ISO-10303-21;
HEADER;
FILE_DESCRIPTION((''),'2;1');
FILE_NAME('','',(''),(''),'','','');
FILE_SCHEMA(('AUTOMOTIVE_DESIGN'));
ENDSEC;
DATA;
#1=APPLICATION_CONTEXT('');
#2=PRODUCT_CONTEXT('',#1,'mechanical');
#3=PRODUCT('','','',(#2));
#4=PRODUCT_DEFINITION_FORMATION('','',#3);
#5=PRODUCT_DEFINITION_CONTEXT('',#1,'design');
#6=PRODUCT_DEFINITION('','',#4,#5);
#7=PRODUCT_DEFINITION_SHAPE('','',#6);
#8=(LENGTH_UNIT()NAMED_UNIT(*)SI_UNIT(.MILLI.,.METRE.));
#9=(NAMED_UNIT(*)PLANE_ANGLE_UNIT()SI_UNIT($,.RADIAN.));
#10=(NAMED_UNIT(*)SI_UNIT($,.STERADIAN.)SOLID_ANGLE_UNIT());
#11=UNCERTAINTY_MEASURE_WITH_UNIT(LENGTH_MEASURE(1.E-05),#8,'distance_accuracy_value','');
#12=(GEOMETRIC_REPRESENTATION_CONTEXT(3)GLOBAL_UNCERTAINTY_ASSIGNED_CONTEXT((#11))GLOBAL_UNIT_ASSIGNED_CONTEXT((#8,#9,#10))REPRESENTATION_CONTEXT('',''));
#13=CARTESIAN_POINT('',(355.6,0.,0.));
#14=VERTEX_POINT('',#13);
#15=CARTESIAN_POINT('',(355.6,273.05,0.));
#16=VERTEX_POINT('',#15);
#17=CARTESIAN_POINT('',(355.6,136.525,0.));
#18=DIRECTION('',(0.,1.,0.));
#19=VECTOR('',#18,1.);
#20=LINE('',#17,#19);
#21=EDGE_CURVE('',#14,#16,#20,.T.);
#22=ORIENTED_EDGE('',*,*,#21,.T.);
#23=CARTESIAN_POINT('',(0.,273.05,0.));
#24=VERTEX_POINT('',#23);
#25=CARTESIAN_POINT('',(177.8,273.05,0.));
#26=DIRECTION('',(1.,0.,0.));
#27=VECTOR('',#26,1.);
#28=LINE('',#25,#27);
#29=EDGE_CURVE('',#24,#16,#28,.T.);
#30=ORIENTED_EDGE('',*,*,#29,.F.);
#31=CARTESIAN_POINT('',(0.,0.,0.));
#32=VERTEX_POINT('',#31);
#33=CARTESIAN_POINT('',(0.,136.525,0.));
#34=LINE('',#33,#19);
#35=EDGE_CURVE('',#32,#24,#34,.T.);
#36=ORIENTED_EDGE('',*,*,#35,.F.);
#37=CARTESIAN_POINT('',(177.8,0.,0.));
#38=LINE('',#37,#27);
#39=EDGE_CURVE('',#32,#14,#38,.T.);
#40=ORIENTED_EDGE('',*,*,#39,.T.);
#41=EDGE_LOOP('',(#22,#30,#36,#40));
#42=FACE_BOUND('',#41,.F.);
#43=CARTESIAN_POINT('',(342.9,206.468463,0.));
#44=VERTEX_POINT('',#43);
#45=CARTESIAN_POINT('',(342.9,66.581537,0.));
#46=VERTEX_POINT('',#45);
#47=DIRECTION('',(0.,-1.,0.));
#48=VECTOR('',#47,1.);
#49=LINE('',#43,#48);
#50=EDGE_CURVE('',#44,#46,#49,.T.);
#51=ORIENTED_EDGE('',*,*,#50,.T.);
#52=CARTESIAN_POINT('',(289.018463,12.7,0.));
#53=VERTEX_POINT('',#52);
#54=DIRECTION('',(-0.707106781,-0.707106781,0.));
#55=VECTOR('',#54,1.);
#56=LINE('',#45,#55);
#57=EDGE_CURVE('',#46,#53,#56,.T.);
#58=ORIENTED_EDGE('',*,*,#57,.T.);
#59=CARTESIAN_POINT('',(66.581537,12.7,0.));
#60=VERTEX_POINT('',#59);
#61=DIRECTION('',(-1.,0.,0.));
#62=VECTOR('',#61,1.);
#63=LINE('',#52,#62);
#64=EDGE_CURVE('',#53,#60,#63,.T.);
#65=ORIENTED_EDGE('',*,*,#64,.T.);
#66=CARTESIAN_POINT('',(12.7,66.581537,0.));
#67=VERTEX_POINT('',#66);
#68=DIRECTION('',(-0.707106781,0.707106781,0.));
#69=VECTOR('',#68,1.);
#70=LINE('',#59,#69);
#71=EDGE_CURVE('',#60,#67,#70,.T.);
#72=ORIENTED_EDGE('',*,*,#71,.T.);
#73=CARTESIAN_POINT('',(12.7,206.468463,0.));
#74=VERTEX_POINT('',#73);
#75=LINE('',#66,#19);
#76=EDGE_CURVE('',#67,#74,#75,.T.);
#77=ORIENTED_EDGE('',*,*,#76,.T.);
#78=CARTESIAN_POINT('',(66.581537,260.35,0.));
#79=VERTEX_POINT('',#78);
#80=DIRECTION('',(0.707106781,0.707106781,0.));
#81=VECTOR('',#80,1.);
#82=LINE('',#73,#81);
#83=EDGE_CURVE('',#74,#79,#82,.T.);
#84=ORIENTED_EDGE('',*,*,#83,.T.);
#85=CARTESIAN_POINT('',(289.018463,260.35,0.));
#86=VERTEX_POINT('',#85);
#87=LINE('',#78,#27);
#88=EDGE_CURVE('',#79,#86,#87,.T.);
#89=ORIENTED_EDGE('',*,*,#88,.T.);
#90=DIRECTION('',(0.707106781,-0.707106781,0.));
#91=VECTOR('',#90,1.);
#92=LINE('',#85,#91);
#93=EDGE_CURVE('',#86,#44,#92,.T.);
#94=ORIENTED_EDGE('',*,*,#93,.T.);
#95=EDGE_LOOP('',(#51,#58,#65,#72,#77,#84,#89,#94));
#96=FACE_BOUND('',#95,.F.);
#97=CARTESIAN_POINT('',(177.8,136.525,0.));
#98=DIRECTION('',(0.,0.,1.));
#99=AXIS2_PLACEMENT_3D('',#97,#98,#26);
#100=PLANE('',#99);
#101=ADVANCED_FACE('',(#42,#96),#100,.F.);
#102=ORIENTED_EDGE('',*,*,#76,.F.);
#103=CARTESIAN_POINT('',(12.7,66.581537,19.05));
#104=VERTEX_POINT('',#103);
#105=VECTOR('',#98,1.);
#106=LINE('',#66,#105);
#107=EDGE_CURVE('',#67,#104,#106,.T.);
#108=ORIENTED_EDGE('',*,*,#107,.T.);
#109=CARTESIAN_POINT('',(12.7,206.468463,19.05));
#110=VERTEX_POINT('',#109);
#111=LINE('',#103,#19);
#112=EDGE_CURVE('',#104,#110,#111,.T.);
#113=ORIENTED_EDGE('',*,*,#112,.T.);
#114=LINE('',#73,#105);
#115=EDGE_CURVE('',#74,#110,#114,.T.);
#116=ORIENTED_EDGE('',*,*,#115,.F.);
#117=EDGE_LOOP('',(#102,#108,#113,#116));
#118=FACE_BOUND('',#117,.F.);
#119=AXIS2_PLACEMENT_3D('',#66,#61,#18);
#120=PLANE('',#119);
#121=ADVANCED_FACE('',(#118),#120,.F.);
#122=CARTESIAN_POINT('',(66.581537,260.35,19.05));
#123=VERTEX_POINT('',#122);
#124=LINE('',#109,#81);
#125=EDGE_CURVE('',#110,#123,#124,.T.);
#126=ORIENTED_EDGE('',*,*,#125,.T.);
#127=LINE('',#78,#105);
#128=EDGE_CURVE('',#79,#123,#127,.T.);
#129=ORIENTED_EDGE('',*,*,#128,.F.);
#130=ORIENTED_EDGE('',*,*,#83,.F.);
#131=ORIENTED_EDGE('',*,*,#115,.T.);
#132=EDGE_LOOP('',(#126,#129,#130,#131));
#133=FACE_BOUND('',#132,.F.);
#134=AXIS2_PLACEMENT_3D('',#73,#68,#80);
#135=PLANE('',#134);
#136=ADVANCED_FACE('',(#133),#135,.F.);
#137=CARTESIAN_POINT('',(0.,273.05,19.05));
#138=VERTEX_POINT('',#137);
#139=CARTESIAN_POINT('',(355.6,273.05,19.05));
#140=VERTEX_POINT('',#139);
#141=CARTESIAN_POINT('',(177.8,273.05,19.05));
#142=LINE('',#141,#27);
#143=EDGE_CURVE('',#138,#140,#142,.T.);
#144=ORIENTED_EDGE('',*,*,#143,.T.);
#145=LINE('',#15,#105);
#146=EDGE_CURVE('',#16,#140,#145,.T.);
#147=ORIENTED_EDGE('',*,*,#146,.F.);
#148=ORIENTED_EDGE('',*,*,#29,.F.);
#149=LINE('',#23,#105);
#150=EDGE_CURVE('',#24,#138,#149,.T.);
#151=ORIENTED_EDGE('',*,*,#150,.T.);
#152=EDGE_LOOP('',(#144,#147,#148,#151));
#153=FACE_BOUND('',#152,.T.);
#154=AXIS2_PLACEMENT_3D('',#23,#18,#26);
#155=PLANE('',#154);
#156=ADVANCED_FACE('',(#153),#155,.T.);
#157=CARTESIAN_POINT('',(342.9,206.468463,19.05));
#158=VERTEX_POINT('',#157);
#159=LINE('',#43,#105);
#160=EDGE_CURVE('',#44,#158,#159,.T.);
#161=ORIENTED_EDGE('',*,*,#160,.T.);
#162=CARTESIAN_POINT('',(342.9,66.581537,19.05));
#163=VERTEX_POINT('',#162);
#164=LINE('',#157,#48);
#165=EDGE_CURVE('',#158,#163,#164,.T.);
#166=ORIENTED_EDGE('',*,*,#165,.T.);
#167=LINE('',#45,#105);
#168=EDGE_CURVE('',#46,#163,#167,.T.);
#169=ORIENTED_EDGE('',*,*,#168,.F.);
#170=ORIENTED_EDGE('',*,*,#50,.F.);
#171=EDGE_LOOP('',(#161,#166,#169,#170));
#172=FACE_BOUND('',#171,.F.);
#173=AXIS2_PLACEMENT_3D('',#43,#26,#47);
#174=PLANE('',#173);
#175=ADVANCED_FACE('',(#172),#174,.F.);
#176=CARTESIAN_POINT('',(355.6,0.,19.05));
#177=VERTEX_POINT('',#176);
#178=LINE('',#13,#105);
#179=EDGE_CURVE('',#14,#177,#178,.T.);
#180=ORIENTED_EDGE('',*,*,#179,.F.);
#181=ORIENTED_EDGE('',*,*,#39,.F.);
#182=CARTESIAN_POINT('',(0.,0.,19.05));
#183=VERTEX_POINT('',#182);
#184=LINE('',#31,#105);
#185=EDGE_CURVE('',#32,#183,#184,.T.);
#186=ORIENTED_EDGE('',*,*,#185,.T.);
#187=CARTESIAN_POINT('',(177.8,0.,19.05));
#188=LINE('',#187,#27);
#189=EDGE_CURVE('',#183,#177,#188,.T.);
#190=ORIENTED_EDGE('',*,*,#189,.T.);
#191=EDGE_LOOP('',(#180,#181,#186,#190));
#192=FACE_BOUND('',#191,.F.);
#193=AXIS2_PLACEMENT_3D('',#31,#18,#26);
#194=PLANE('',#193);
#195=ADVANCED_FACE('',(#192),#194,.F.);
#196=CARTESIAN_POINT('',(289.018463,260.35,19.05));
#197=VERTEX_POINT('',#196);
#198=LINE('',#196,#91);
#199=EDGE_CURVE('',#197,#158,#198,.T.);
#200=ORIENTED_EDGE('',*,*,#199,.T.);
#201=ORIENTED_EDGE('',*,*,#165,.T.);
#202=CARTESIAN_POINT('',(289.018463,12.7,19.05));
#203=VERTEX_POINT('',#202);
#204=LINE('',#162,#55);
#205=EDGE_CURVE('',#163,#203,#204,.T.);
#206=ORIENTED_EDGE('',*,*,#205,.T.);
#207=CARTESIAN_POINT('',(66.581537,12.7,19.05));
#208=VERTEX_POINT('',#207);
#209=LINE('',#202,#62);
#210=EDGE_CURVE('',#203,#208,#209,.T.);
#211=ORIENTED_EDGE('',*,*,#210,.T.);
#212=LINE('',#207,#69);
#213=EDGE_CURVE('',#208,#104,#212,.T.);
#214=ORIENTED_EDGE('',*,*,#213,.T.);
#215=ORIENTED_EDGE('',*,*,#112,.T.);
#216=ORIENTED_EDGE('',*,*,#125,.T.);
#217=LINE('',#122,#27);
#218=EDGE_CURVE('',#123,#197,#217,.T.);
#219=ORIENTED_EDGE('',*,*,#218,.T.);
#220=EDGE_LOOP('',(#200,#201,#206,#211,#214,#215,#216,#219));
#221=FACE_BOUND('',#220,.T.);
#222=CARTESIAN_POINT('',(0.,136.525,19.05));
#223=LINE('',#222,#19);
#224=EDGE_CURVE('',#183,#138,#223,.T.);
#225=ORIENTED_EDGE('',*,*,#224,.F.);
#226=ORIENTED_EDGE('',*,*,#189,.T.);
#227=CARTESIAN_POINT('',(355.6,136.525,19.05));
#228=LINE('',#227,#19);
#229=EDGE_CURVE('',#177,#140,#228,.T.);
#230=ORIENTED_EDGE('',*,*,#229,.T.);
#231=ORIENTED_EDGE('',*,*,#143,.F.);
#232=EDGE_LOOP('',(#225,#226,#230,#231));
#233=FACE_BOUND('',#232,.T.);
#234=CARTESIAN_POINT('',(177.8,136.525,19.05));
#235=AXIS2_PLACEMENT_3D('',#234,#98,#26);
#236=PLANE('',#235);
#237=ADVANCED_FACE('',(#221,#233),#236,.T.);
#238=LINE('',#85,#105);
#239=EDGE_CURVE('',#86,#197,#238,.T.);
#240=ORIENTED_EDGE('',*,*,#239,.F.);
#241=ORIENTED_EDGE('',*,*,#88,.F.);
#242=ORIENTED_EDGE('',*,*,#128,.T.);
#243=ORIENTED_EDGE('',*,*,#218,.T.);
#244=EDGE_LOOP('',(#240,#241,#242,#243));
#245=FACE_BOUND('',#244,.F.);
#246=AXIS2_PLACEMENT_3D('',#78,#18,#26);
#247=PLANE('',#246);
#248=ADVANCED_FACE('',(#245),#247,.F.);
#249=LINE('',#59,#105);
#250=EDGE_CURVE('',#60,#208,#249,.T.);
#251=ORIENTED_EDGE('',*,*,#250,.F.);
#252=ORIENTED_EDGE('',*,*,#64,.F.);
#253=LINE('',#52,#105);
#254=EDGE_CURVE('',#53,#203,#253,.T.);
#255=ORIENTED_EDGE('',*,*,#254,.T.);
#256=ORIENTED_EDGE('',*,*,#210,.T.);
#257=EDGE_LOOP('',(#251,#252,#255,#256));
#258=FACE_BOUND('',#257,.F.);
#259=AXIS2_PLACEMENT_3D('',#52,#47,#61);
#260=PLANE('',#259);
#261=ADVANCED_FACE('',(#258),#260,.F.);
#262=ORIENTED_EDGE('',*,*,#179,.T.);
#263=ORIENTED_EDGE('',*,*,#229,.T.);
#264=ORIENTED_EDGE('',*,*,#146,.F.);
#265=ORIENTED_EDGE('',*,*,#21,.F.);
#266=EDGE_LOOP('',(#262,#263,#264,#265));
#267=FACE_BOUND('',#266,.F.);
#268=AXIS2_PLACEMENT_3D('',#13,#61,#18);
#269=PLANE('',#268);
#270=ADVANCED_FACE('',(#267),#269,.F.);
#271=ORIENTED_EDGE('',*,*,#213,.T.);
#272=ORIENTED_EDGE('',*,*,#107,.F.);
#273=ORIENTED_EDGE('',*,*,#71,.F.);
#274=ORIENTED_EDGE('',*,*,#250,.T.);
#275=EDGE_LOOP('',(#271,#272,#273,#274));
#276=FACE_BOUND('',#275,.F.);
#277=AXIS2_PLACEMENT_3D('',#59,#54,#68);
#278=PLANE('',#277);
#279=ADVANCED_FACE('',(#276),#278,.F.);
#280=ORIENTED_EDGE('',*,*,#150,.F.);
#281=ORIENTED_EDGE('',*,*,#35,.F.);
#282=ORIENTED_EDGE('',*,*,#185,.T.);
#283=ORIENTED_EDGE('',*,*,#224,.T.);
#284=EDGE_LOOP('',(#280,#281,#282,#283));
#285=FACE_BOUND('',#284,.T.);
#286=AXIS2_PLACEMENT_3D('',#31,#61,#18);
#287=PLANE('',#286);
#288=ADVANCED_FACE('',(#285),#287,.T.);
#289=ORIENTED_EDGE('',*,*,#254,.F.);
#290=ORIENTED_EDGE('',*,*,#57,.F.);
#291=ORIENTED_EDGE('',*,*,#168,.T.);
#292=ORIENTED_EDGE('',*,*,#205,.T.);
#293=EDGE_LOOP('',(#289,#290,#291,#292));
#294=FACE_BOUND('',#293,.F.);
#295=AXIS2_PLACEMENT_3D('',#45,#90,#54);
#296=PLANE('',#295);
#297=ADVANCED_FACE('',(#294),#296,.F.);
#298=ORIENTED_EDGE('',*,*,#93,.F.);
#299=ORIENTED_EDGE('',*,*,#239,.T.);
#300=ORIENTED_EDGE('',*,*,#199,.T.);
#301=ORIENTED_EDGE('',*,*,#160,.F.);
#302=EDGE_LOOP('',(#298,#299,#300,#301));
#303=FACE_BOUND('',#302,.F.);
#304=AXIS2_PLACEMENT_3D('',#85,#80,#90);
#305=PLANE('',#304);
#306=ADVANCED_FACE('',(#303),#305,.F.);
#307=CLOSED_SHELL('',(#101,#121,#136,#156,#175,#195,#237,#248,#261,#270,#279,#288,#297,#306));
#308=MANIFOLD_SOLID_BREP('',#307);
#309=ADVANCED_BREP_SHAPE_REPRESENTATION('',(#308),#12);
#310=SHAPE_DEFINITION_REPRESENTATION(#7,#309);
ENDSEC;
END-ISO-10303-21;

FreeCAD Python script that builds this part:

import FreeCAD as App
import Part
import Sketcher

V = App.Vector
Q = App.Units.Quantity


def add_polygon(sketch, points):
    """Adds a closed chain of lines whose ends are joined by coincident constraints."""
    first, n = sketch.GeometryCount, len(points)
    for a, b in zip(points, points[1:] + points[:1]):
        sketch.addGeometry(Part.LineSegment(App.Vector(*a, 0), App.Vector(*b, 0)), False)
    for i in range(n):
        sketch.addConstraint(Sketcher.Constraint("Coincident", first + i, 2, first + (i + 1) % n, 1))

doc = App.newDocument("Part")
body = doc.addObject("PartDesign::Body", "Body")

sketch1 = body.newObject("Sketcher::SketchObject", "Sketch")
sketch1.AttachmentSupport = (doc.getObject("XY_Plane"), [""])
sketch1.MapMode = "FlatFace"
add_polygon(sketch1, [(0, 273.05), (0, 0), (355.6, 0), (355.6, 273.05)])
add_polygon(sketch1, [(12.7, 66.581537), (12.7, 206.468463), (66.581537, 260.35), (289.018463, 260.35), (342.9, 206.468463), (342.9, 66.581537), (289.018463, 12.7), (66.581537, 12.7)])
sketch1.addConstraint(Sketcher.Constraint("Vertical", 0))
sketch1.addConstraint(Sketcher.Constraint("Horizontal", 1))
sketch1.addConstraint(Sketcher.Constraint("Vertical", 2))
sketch1.addConstraint(Sketcher.Constraint("Horizontal", 3))
sketch1.addConstraint(Sketcher.Constraint("Vertical", 4))
sketch1.addConstraint(Sketcher.Constraint("Horizontal", 6))
sketch1.addConstraint(Sketcher.Constraint("Vertical", 8))
sketch1.addConstraint(Sketcher.Constraint("Horizontal", 10))
sketch1.addConstraint(Sketcher.Constraint("Coincident", 0, 2, -1, 1))
sketch1.addConstraint(Sketcher.Constraint("Perpendicular", 5, 7))
sketch1.addConstraint(Sketcher.Constraint("Perpendicular", 7, 9))
sketch1.addConstraint(Sketcher.Constraint("Perpendicular", 9, 11))
sketch1.addConstraint(Sketcher.Constraint("Horizontal", 4, 2, 7, 2))
sketch1.addConstraint(Sketcher.Constraint("Horizontal", 8, 2, 11, 2))
sketch1.addConstraint(Sketcher.Constraint("Vertical", 6, 2, 9, 2))
sketch1.addConstraint(Sketcher.Constraint("Vertical", 5, 2, 10, 2))
sketch1.addConstraint(Sketcher.Constraint("DistanceX", 1, 1, 1, 2, Q("14 in")))
sketch1.addConstraint(Sketcher.Constraint("Distance", 5, Q("3 in")))
sketch1.addConstraint(Sketcher.Constraint("DistanceX", 4, 2, 7, 2, Q("13 in")))
sketch1.addConstraint(Sketcher.Constraint("DistanceY", 0, 2, 0, 1, Q("10.75 in")))
sketch1.addConstraint(Sketcher.Constraint("DistanceX", -1, 1, 4, 2, Q("0.5 in")))
sketch1.addConstraint(Sketcher.Constraint("DistanceY", -1, 1, 9, 2, Q("0.5 in")))
sketch1.addConstraint(Sketcher.Constraint("DistanceY", 5, 2, 3, 2, Q("0.5 in")))
pad1 = body.newObject("PartDesign::Pad", "Pad")
pad1.Profile = sketch1
pad1.Length = Q("0.75 in")

doc.recompute()
